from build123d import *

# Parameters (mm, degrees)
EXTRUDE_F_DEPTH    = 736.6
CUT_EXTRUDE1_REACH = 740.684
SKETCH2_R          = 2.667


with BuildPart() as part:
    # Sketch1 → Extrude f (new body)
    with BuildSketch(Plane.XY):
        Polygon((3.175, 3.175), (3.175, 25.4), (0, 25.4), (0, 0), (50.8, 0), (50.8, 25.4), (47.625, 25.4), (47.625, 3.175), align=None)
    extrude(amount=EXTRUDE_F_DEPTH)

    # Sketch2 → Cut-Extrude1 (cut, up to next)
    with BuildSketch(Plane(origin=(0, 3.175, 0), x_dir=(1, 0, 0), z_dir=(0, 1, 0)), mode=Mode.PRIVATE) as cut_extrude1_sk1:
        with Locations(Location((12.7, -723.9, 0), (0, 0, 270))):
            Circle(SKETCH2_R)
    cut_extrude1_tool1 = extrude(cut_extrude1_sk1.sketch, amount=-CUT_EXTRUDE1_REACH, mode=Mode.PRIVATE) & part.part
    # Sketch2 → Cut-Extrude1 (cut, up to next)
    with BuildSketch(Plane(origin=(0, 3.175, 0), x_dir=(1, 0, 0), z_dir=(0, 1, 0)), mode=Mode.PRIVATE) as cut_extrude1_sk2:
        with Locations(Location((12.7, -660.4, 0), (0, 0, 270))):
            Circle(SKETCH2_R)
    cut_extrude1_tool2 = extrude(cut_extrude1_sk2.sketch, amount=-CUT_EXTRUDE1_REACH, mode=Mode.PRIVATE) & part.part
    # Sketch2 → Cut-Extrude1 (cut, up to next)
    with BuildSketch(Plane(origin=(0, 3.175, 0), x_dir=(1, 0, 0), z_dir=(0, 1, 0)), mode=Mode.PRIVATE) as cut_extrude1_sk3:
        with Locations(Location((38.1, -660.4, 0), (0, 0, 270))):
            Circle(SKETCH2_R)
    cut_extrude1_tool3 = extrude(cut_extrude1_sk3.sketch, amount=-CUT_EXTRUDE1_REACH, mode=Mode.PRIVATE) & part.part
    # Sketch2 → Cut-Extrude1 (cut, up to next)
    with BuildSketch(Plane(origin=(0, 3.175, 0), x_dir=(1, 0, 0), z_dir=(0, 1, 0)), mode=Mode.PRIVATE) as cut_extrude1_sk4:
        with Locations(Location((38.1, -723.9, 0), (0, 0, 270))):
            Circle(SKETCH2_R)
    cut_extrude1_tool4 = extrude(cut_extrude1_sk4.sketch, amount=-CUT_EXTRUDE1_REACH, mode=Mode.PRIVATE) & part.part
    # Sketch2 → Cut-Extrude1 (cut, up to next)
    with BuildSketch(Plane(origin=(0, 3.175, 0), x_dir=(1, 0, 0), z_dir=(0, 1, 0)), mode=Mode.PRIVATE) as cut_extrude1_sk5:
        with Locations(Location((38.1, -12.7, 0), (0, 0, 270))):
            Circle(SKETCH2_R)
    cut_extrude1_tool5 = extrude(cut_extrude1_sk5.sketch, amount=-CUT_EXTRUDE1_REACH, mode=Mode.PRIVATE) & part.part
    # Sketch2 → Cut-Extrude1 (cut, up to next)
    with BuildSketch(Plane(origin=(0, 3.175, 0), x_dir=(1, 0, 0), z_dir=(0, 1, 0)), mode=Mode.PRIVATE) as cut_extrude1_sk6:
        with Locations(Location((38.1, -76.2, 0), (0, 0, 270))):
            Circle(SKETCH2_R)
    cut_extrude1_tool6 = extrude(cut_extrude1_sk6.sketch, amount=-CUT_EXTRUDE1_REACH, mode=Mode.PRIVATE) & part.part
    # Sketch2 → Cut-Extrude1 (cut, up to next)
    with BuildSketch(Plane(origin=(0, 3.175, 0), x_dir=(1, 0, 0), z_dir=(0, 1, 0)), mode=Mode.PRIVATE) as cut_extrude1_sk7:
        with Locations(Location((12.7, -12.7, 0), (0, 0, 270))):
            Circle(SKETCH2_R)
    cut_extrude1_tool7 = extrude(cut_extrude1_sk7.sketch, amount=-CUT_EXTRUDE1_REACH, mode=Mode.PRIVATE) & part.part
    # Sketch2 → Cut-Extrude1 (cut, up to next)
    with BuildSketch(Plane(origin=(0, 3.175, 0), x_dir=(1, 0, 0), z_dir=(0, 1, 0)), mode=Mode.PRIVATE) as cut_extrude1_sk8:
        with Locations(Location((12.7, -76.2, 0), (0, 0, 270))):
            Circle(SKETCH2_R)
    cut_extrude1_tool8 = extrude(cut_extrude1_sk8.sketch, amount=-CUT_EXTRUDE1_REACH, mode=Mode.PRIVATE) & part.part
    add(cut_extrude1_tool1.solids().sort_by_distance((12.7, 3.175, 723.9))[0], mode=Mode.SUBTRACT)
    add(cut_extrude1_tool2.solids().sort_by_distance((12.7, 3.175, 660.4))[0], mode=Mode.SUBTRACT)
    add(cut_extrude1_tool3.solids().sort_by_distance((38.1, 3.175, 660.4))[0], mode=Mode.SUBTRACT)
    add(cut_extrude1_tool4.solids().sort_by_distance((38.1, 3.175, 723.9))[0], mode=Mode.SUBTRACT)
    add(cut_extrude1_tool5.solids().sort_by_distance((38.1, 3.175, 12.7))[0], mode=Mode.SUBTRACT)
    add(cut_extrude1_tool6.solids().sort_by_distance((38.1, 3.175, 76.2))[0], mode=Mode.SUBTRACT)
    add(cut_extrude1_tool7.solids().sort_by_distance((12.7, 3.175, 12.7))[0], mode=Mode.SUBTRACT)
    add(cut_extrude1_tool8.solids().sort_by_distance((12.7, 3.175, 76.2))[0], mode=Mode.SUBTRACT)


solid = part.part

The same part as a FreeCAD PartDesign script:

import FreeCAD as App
import Part
import Sketcher
from FreeCAD import Vector
Q = App.Units.Quantity


def add_polygon(sketch, points):
    """Adds a closed chain of lines whose ends are joined by coincident constraints."""
    first, n = sketch.GeometryCount, len(points)
    for a, b in zip(points, points[1:] + points[:1]):
        sketch.addGeometry(Part.LineSegment(App.Vector(*a, 0), App.Vector(*b, 0)), False)
    for i in range(n):
        sketch.addConstraint(Sketcher.Constraint("Coincident", first + i, 2, first + (i + 1) % n, 1))

doc = App.newDocument("Part")
body = doc.addObject("PartDesign::Body", "Body")

# Sketch on XY plane
sketch1 = body.newObject("Sketcher::SketchObject", "Sketch")
sketch1.AttachmentSupport = (doc.getObject("XY_Plane"), [""])
sketch1.MapMode = "FlatFace"
add_polygon(sketch1, [(3.2, 3.2), (3.2, 25.4), (0, 25.4), (0, 0), (50.8, 0), (50.8, 25.4), (47.6, 25.4), (47.6, 3.2)])  # lines 0-7
sketch1.addConstraint([
    Sketcher.Constraint("Vertical", 0),
    Sketcher.Constraint("Horizontal", 1),
    Sketcher.Constraint("Vertical", 2),
    Sketcher.Constraint("Horizontal", 3),
    Sketcher.Constraint("Vertical", 4),
    Sketcher.Constraint("Horizontal", 5),
    Sketcher.Constraint("Vertical", 6),
    Sketcher.Constraint("Horizontal", 7),
    Sketcher.Constraint("Coincident", 2, 2, -1, 1),
    Sketcher.Constraint("Horizontal", 1, 2, 4, 2),
    Sketcher.Constraint("Equal", 1, 5),
    Sketcher.Constraint("DistanceX", 3, 1, 3, 2, Q("2 in")),
    Sketcher.Constraint("DistanceY", 2, 2, 2, 1, Q("1 in")),
    Sketcher.Constraint("DistanceX", 7, 2, 7, 1, Q("1.75 in")),
    Sketcher.Constraint("DistanceY", 0, 1, 0, 2, Q("0.875 in")),
])
pad1 = body.newObject("PartDesign::Pad", "Pad")
pad1.Profile = sketch1
pad1.Length = Q("29 in")

# Sketch on XZ plane
sketch2 = body.newObject("Sketcher::SketchObject", "Sketch001")
sketch2.AttachmentSupport = (doc.getObject("XZ_Plane"), [""])
sketch2.MapMode = "FlatFace"
sketch2.AttachmentOffset = App.Placement(Vector(0, 0, -0.125 * 25.4), App.Rotation())
sketch2.addGeometry(Part.Circle(Vector(12.7, 723.9, 0), Vector(0, 0, 1), 2.7), False)
sketch2.addConstraint([
    Sketcher.Constraint("Diameter", 0, Q("0.21 in")),
    Sketcher.Constraint("DistanceX", -1, 1, 0, 3, Q("0.5 in")),
    Sketcher.Constraint("DistanceY", -1, 1, 0, 3, Q("28.5 in")),
])
pocket1 = body.newObject("PartDesign::Pocket", "Pocket")
pocket1.Profile = sketch2
pocket1.Type = "UpToFirst"
pocket1.Reversed = True

# Sketch on XZ plane
sketch3 = body.newObject("Sketcher::SketchObject", "Sketch002")
sketch3.AttachmentSupport = (doc.getObject("XZ_Plane"), [""])
sketch3.MapMode = "FlatFace"
sketch3.AttachmentOffset = App.Placement(Vector(0, 0, -0.125 * 25.4), App.Rotation())
sketch3.addGeometry(Part.Circle(Vector(12.7, 660.4, 0), Vector(0, 0, 1), 2.7), False)
sketch3.addConstraint([
    Sketcher.Constraint("Diameter", 0, Q("0.21 in")),
    Sketcher.Constraint("DistanceY", -1, 1, 0, 3, Q("26 in")),
    Sketcher.Constraint("DistanceX", -1, 1, 0, 3, Q("0.5 in")),
])
pocket2 = body.newObject("PartDesign::Pocket", "Pocket001")
pocket2.Profile = sketch3
pocket2.Type = "UpToFirst"
pocket2.Reversed = True

# Sketch on XZ plane
sketch4 = body.newObject("Sketcher::SketchObject", "Sketch003")
sketch4.AttachmentSupport = (doc.getObject("XZ_Plane"), [""])
sketch4.MapMode = "FlatFace"
sketch4.AttachmentOffset = App.Placement(Vector(0, 0, -0.125 * 25.4), App.Rotation())
sketch4.addGeometry(Part.Circle(Vector(38.1, 660.4, 0), Vector(0, 0, 1), 2.7), False)
sketch4.addConstraint([
    Sketcher.Constraint("Diameter", 0, Q("0.21 in")),
    Sketcher.Constraint("DistanceY", -1, 1, 0, 3, Q("26 in")),
    Sketcher.Constraint("DistanceX", -1, 1, 0, 3, Q("1.5 in")),
])
pocket3 = body.newObject("PartDesign::Pocket", "Pocket002")
pocket3.Profile = sketch4
pocket3.Type = "UpToFirst"
pocket3.Reversed = True

# Sketch on XZ plane
sketch5 = body.newObject("Sketcher::SketchObject", "Sketch004")
sketch5.AttachmentSupport = (doc.getObject("XZ_Plane"), [""])
sketch5.MapMode = "FlatFace"
sketch5.AttachmentOffset = App.Placement(Vector(0, 0, -0.125 * 25.4), App.Rotation())
sketch5.addGeometry(Part.Circle(Vector(38.1, 723.9, 0), Vector(0, 0, 1), 2.7), False)
sketch5.addConstraint([
    Sketcher.Constraint("Diameter", 0, Q("0.21 in")),
    Sketcher.Constraint("DistanceX", -1, 1, 0, 3, Q("1.5 in")),
    Sketcher.Constraint("DistanceY", -1, 1, 0, 3, Q("28.5 in")),
])
pocket4 = body.newObject("PartDesign::Pocket", "Pocket003")
pocket4.Profile = sketch5
pocket4.Type = "UpToFirst"
pocket4.Reversed = True

# Sketch on XZ plane
sketch6 = body.newObject("Sketcher::SketchObject", "Sketch005")
sketch6.AttachmentSupport = (doc.getObject("XZ_Plane"), [""])
sketch6.MapMode = "FlatFace"
sketch6.AttachmentOffset = App.Placement(Vector(0, 0, -0.125 * 25.4), App.Rotation())
sketch6.addGeometry(Part.Circle(Vector(38.1, 12.7, 0), Vector(0, 0, 1), 2.7), False)
sketch6.addConstraint([
    Sketcher.Constraint("Diameter", 0, Q("0.21 in")),
    Sketcher.Constraint("DistanceX", -1, 1, 0, 3, Q("1.5 in")),
    Sketcher.Constraint("DistanceY", -1, 1, 0, 3, Q("0.5 in")),
])
pocket5 = body.newObject("PartDesign::Pocket", "Pocket004")
pocket5.Profile = sketch6
pocket5.Type = "UpToFirst"
pocket5.Reversed = True

# Sketch on XZ plane
sketch7 = body.newObject("Sketcher::SketchObject", "Sketch006")
sketch7.AttachmentSupport = (doc.getObject("XZ_Plane"), [""])
sketch7.MapMode = "FlatFace"
sketch7.AttachmentOffset = App.Placement(Vector(0, 0, -0.125 * 25.4), App.Rotation())
sketch7.addGeometry(Part.Circle(Vector(38.1, 76.2, 0), Vector(0, 0, 1), 2.7), False)
sketch7.addConstraint([
    Sketcher.Constraint("Diameter", 0, Q("0.21 in")),
    Sketcher.Constraint("DistanceY", -1, 1, 0, 3, Q("3 in")),
    Sketcher.Constraint("DistanceX", -1, 1, 0, 3, Q("1.5 in")),
])
pocket6 = body.newObject("PartDesign::Pocket", "Pocket005")
pocket6.Profile = sketch7
pocket6.Type = "UpToFirst"
pocket6.Reversed = True

# Sketch on XZ plane
sketch8 = body.newObject("Sketcher::SketchObject", "Sketch007")
sketch8.AttachmentSupport = (doc.getObject("XZ_Plane"), [""])
sketch8.MapMode = "FlatFace"
sketch8.AttachmentOffset = App.Placement(Vector(0, 0, -0.125 * 25.4), App.Rotation())
sketch8.addGeometry(Part.Circle(Vector(12.7, 12.7, 0), Vector(0, 0, 1), 2.7), False)
sketch8.addConstraint([
    Sketcher.Constraint("Diameter", 0, Q("0.21 in")),
    Sketcher.Constraint("DistanceX", -1, 1, 0, 3, Q("0.5 in")),
    Sketcher.Constraint("DistanceY", -1, 1, 0, 3, Q("0.5 in")),
])
pocket7 = body.newObject("PartDesign::Pocket", "Pocket006")
pocket7.Profile = sketch8
pocket7.Type = "UpToFirst"
pocket7.Reversed = True

# Sketch on XZ plane
sketch9 = body.newObject("Sketcher::SketchObject", "Sketch008")
sketch9.AttachmentSupport = (doc.getObject("XZ_Plane"), [""])
sketch9.MapMode = "FlatFace"
sketch9.AttachmentOffset = App.Placement(Vector(0, 0, -0.125 * 25.4), App.Rotation())
sketch9.addGeometry(Part.Circle(Vector(12.7, 76.2, 0), Vector(0, 0, 1), 2.7), False)
sketch9.addConstraint([
    Sketcher.Constraint("Diameter", 0, Q("0.21 in")),
    Sketcher.Constraint("DistanceY", -1, 1, 0, 3, Q("3 in")),
    Sketcher.Constraint("DistanceX", -1, 1, 0, 3, Q("0.5 in")),
])
pocket8 = body.newObject("PartDesign::Pocket", "Pocket007")
pocket8.Profile = sketch9
pocket8.Type = "UpToFirst"
pocket8.Reversed = True

doc.recompute()
